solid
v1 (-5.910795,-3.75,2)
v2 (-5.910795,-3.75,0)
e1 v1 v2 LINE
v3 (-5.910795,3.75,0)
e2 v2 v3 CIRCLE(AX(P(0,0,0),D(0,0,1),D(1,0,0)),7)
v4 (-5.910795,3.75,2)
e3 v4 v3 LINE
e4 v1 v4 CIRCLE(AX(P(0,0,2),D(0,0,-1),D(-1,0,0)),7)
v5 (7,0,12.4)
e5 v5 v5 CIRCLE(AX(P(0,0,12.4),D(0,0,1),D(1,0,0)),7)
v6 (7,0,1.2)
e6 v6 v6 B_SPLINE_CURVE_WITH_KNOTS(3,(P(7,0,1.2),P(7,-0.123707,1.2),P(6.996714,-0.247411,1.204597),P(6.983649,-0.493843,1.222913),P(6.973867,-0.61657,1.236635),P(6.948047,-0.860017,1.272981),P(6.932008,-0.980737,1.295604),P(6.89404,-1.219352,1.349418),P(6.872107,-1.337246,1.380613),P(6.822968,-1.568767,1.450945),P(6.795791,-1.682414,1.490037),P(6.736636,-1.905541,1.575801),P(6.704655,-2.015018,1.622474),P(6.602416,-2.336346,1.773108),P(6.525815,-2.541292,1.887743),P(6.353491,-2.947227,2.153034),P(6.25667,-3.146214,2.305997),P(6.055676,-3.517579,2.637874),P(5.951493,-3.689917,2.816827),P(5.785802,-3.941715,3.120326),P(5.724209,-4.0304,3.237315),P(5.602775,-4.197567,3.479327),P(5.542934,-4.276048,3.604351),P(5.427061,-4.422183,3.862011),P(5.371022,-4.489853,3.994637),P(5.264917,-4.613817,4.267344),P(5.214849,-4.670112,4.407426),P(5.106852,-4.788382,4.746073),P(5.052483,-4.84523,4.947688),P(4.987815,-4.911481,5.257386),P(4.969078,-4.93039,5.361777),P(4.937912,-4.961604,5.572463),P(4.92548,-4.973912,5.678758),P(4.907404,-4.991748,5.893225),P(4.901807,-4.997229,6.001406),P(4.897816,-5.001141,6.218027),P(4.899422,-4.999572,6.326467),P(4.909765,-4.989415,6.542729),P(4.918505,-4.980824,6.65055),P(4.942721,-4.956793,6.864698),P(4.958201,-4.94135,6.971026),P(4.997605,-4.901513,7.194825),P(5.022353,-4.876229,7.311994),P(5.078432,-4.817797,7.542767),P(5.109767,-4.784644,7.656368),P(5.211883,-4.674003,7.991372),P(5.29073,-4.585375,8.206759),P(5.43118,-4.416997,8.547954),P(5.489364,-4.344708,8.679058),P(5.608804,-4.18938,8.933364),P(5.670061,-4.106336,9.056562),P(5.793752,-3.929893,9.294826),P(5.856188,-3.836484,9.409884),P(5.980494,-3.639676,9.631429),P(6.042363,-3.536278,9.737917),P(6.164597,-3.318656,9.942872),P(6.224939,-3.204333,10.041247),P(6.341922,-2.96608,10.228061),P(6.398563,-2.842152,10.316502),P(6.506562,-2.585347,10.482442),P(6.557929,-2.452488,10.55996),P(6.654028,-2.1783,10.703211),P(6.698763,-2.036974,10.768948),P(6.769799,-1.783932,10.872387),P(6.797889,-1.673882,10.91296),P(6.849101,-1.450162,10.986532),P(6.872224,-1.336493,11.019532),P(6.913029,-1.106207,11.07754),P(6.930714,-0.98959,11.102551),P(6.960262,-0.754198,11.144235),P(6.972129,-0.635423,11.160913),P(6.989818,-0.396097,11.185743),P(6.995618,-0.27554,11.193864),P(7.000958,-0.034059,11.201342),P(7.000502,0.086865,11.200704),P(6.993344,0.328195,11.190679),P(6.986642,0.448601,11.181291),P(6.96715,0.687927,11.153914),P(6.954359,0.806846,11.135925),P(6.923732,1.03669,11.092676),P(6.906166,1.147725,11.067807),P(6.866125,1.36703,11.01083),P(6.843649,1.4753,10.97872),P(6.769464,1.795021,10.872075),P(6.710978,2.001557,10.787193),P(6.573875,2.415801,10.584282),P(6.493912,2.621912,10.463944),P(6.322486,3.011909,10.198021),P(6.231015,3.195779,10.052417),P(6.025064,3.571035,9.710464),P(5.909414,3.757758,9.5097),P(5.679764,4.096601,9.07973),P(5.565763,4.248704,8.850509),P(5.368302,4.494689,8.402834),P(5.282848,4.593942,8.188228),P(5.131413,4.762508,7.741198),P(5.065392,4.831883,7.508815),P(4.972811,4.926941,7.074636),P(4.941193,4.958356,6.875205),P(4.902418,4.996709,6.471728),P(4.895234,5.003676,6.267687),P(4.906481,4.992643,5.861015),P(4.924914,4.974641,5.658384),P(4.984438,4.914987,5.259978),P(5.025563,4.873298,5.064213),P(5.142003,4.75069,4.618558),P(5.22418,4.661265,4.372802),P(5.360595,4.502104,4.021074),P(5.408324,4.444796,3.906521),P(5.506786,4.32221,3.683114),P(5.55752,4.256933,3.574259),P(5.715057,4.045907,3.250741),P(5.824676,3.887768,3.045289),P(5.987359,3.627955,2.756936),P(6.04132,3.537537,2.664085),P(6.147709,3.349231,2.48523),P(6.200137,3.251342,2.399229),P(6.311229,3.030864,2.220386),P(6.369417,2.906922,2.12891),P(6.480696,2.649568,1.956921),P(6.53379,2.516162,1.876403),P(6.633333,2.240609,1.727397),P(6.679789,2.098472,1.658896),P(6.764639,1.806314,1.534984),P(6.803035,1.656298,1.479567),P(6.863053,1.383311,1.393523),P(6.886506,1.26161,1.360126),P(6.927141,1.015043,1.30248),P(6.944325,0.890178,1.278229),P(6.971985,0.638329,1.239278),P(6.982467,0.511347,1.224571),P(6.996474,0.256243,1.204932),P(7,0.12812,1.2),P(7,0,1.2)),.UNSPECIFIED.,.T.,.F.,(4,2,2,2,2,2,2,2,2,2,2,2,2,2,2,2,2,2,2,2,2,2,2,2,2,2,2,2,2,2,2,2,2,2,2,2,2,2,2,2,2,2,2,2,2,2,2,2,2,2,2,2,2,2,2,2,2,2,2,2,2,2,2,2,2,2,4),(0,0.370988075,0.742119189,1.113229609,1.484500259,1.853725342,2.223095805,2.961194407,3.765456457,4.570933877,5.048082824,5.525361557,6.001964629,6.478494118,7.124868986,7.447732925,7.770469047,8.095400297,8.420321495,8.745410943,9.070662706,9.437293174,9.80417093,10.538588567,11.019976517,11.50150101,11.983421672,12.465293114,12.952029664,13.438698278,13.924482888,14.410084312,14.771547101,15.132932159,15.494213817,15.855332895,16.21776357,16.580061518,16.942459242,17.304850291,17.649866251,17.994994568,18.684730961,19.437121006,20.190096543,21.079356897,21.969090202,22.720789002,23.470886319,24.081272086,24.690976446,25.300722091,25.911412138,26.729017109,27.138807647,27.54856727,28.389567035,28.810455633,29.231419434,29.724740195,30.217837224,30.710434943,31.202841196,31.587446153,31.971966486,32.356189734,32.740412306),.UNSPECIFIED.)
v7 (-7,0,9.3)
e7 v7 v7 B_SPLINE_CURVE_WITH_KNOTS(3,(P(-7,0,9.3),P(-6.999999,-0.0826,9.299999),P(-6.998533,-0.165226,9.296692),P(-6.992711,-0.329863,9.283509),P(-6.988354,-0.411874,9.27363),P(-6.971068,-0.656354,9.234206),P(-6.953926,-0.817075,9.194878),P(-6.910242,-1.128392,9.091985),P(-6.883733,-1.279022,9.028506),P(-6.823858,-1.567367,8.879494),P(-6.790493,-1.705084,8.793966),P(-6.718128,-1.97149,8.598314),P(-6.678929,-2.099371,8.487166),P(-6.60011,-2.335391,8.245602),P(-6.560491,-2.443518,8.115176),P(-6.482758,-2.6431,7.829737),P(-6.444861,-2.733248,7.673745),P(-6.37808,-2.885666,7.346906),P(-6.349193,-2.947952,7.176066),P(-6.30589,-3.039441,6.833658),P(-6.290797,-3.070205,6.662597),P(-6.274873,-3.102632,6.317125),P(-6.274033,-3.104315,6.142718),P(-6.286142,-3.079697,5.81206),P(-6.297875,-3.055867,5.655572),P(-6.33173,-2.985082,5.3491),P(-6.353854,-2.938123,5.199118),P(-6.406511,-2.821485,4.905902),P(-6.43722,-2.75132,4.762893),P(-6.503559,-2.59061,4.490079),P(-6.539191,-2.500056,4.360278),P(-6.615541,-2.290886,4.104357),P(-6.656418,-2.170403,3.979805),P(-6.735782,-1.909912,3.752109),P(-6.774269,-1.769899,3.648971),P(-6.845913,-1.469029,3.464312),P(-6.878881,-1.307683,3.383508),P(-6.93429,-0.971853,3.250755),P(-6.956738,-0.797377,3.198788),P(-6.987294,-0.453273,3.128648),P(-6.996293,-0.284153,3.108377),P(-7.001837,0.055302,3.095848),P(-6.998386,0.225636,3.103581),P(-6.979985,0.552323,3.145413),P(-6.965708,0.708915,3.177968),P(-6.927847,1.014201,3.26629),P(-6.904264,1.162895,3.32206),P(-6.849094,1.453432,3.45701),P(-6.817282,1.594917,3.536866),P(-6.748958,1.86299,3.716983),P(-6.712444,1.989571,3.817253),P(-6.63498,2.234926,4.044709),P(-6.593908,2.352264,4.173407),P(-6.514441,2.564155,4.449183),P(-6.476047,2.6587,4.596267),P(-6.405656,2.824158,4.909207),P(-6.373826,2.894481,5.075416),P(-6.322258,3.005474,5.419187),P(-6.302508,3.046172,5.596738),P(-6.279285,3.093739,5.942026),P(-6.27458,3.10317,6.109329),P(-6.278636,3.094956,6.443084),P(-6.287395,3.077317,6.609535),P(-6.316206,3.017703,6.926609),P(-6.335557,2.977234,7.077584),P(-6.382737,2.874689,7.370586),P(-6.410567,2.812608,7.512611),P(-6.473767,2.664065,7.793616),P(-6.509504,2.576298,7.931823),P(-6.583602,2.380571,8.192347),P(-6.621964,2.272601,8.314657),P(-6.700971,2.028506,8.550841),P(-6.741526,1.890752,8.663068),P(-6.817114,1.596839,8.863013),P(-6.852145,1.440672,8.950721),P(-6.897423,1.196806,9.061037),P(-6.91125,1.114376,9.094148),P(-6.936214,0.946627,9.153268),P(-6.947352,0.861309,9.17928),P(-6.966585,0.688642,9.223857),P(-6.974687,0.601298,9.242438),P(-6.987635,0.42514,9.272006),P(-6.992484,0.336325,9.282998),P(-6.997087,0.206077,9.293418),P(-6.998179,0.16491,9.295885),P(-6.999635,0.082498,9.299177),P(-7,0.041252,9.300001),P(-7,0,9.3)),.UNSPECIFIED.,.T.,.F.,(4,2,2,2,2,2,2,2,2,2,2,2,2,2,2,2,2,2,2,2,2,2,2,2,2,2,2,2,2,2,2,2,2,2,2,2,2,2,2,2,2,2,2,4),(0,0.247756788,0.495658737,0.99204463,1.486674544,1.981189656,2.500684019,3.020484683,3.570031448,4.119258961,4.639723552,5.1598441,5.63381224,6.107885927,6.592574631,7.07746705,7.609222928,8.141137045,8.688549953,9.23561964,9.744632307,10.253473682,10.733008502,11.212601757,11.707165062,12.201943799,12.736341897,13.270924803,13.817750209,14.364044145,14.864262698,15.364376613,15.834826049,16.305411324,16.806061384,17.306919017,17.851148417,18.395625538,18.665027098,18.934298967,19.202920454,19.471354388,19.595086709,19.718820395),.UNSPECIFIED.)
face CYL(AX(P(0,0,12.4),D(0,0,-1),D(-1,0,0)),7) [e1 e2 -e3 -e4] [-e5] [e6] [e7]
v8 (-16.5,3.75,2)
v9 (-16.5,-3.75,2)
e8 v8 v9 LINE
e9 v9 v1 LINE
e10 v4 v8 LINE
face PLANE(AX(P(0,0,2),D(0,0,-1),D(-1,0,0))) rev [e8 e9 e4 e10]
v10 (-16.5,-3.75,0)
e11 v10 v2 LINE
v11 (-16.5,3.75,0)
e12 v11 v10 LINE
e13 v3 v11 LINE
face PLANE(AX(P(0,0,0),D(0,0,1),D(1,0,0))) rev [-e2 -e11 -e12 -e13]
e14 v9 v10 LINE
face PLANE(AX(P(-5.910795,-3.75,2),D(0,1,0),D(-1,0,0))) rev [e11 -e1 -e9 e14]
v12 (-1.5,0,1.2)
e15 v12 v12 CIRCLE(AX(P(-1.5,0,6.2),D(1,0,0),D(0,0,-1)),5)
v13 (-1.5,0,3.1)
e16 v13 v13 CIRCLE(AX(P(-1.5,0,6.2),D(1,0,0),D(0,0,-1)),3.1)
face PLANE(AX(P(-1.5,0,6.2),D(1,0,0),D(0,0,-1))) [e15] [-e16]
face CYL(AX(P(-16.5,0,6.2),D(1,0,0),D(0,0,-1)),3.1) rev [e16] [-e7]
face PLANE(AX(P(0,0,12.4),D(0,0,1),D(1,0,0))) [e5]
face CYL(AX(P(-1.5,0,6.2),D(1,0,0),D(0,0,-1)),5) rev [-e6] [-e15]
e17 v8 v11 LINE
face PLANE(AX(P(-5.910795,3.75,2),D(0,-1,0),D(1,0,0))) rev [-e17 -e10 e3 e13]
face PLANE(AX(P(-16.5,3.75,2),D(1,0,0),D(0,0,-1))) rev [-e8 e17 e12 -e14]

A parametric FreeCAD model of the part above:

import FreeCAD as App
import Part
import Sketcher


def add_polygon(sketch, points):
    """Adds a closed chain of lines whose ends are joined by coincident constraints."""
    first, n = sketch.GeometryCount, len(points)
    for a, b in zip(points, points[1:] + points[:1]):
        sketch.addGeometry(Part.LineSegment(App.Vector(*a, 0), App.Vector(*b, 0)), False)
    for i in range(n):
        sketch.addConstraint(Sketcher.Constraint("Coincident", first + i, 2, first + (i + 1) % n, 1))

doc = App.newDocument("Part")
body = doc.addObject("PartDesign::Body", "Body")

sketch1 = body.newObject("Sketcher::SketchObject", "Sketch")
sketch1.AttachmentSupport = (doc.getObject("XY_Plane"), [""])
sketch1.MapMode = "FlatFace"
sketch1.addGeometry(Part.Circle(App.Vector(0, 0, 0), App.Vector(0, 0, 1), 7), False)
sketch1.addConstraint([
    Sketcher.Constraint("Coincident", 0, 3, -1, 1),
    Sketcher.Constraint("Diameter", 0, 14.0),
])
pad1 = body.newObject("PartDesign::Pad", "Pad")
pad1.Profile = sketch1
pad1.Length = 12.4

sketch2 = body.newObject("Sketcher::SketchObject", "Sketch001")
sketch2.AttachmentSupport = (doc.getObject("XY_Plane"), [""])
sketch2.MapMode = "FlatFace"
add_polygon(sketch2, [(-16.5, 3.75), (-16.5, -3.75), (-5.910795, -3.75), (-5.910795, 3.75)])
sketch2.addConstraint([
    Sketcher.Constraint("Vertical", 0),
    Sketcher.Constraint("Horizontal", 1),
    Sketcher.Constraint("Vertical", 2),
    Sketcher.Constraint("Horizontal", 3),
    Sketcher.Constraint("DistanceY", 0, 2, 0, 1, 7.5),
    Sketcher.Constraint("DistanceX", 0, 2, -1, 1, 16.5),
    Sketcher.Constraint("DistanceY", 0, 2, -1, 1, 3.75),
    Sketcher.Constraint("DistanceX", 1, 1, 1, 2, 10.589205),
])
pad2 = body.newObject("PartDesign::Pad", "Pad001")
pad2.Profile = sketch2
pad2.Length = 2

sketch3 = body.newObject("Sketcher::SketchObject", "Sketch002")
sketch3.AttachmentSupport = (doc.getObject("YZ_Plane"), [""])
sketch3.MapMode = "FlatFace"
sketch3.addGeometry(Part.Circle(App.Vector(0, 6.2, 0), App.Vector(0, 0, 1), 5), False)
sketch3.addConstraint([
    Sketcher.Constraint("PointOnObject", 0, 3, -2),
    Sketcher.Constraint("Diameter", 0, 10.0),
    Sketcher.Constraint("DistanceY", -1, 1, 0, 3, 6.2),
])
pocket1 = body.newObject("PartDesign::Pocket", "Pocket")
pocket1.Profile = sketch3
pocket1.Type = "TwoLengths"
pocket1.Length = 8
pocket1.Length2 = 1.5
pocket1.Reversed = True

sketch4 = body.newObject("Sketcher::SketchObject", "Sketch003")
sketch4.AttachmentSupport = (doc.getObject("YZ_Plane"), [""])
sketch4.MapMode = "FlatFace"
sketch4.AttachmentOffset = App.Placement(App.Vector(0, 0, -1.5), App.Rotation())
sketch4.addGeometry(Part.Circle(App.Vector(0, 6.2, 0), App.Vector(0, 0, 1), 3.1), False)
sketch4.addConstraint([
    Sketcher.Constraint("PointOnObject", 0, 3, -2),
    Sketcher.Constraint("Diameter", 0, 6.2),
    Sketcher.Constraint("DistanceY", -1, 1, 0, 3, 6.2),
])
pocket2 = body.newObject("PartDesign::Pocket", "Pocket001")
pocket2.Profile = sketch4
pocket2.Type = "ThroughAll"

doc.recompute()
